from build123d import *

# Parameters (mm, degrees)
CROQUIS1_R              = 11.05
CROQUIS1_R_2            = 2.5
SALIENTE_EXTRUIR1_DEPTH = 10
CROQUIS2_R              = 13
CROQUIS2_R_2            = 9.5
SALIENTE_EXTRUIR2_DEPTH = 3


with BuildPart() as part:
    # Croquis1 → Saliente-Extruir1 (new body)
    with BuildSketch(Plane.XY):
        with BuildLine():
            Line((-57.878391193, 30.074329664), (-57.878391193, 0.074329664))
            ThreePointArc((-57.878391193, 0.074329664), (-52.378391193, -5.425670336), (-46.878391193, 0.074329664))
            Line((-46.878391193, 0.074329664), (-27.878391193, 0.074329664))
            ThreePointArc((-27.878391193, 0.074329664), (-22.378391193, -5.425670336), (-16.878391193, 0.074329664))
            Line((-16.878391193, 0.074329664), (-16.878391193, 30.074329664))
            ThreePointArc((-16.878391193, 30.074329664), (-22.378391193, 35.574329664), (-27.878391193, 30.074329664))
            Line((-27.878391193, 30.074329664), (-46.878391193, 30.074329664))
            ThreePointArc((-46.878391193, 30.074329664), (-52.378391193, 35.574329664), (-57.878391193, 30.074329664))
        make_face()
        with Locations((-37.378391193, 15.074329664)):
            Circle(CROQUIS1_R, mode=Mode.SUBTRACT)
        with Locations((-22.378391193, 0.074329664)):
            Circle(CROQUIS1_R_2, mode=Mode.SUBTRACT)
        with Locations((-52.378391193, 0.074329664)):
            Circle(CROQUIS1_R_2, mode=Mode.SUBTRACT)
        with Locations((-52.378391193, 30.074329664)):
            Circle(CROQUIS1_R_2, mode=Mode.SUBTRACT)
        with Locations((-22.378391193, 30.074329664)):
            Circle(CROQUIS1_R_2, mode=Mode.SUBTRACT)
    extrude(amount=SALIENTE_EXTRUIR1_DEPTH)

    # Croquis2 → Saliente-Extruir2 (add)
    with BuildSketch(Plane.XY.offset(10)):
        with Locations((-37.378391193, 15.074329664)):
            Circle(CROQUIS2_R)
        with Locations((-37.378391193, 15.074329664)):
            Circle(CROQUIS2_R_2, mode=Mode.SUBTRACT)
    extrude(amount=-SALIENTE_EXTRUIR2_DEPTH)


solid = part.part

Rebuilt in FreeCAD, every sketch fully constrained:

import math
import FreeCAD as App
import Part
import Sketcher

V = App.Vector

doc = App.newDocument("Part")
body = doc.addObject("PartDesign::Body", "Body")

sketch1 = doc.addObject("Sketcher::SketchObject", "Sketch")
body.addObject(sketch1)
sketch1.AttachmentSupport = (doc.XY_Plane, [""])
sketch1.MapMode = "FlatFace"
sketch1.addGeometry(Part.LineSegment(V(-57.878391, 30.07433, 0), V(-57.878391, 0.07433, 0)), False)
sketch1.addGeometry(Part.ArcOfCircle(Part.Circle(V(-52.378391, 0.07433, 0), V(0, 0, 1), 5.5), math.radians(180), math.radians(360)), False)
sketch1.addGeometry(Part.LineSegment(V(-46.878391, 0.07433, 0), V(-27.878391, 0.07433, 0)), False)
sketch1.addGeometry(Part.ArcOfCircle(Part.Circle(V(-22.378391, 0.07433, 0), V(0, 0, 1), 5.5), math.radians(180), math.radians(360)), False)
sketch1.addGeometry(Part.LineSegment(V(-16.878391, 0.07433, 0), V(-16.878391, 30.07433, 0)), False)
sketch1.addGeometry(Part.ArcOfCircle(Part.Circle(V(-22.378391, 30.07433, 0), V(0, 0, 1), 5.5), math.radians(0), math.radians(180)), False)
sketch1.addGeometry(Part.LineSegment(V(-27.878391, 30.07433, 0), V(-46.878391, 30.07433, 0)), False)
sketch1.addGeometry(Part.ArcOfCircle(Part.Circle(V(-52.378391, 30.07433, 0), V(0, 0, 1), 5.5), math.radians(0), math.radians(180)), False)
sketch1.addGeometry(Part.Circle(V(-52.378391, 0.07433, 0), V(0, 0, 1), 2.5), False)
sketch1.addGeometry(Part.Circle(V(-22.378391, 0.07433, 0), V(0, 0, 1), 2.5), False)
sketch1.addGeometry(Part.Circle(V(-52.378391, 30.07433, 0), V(0, 0, 1), 2.5), False)
sketch1.addGeometry(Part.Circle(V(-37.378391, 15.07433, 0), V(0, 0, 1), 11.05), False)
sketch1.addGeometry(Part.Circle(V(-22.378391, 30.07433, 0), V(0, 0, 1), 2.5), False)
sketch1.addConstraint(Sketcher.Constraint("Tangent", 0, 2, 1, 1))
sketch1.addConstraint(Sketcher.Constraint("Coincident", 1, 2, 2, 1))
sketch1.addConstraint(Sketcher.Constraint("Coincident", 2, 2, 3, 1))
sketch1.addConstraint(Sketcher.Constraint("Tangent", 3, 2, 4, 1))
sketch1.addConstraint(Sketcher.Constraint("Tangent", 4, 2, 5, 1))
sketch1.addConstraint(Sketcher.Constraint("Coincident", 5, 2, 6, 1))
sketch1.addConstraint(Sketcher.Constraint("Coincident", 6, 2, 7, 1))
sketch1.addConstraint(Sketcher.Constraint("Tangent", 7, 2, 0, 1))
sketch1.addConstraint(Sketcher.Constraint("Vertical", 0))
sketch1.addConstraint(Sketcher.Constraint("Horizontal", 2))
sketch1.addConstraint(Sketcher.Constraint("Vertical", 4))
sketch1.addConstraint(Sketcher.Constraint("Horizontal", 6))
sketch1.addConstraint(Sketcher.Constraint("Coincident", 8, 3, 1, 3))
sketch1.addConstraint(Sketcher.Constraint("Coincident", 9, 3, 3, 3))
sketch1.addConstraint(Sketcher.Constraint("Coincident", 10, 3, 7, 3))
sketch1.addConstraint(Sketcher.Constraint("Coincident", 12, 3, 5, 3))
sketch1.addConstraint(Sketcher.Constraint("Equal", 1, 3))
sketch1.addConstraint(Sketcher.Constraint("Equal", 3, 5))
sketch1.addConstraint(Sketcher.Constraint("Equal", 5, 7))
sketch1.addConstraint(Sketcher.Constraint("Equal", 8, 9))
sketch1.addConstraint(Sketcher.Constraint("Equal", 9, 10))
sketch1.addConstraint(Sketcher.Constraint("Equal", 10, 12))
sketch1.addConstraint(Sketcher.Constraint("Horizontal", 1, 3, 3, 3))
sketch1.addConstraint(Sketcher.Constraint("Horizontal", 5, 3, 7, 3))
sketch1.addConstraint(Sketcher.Constraint("Horizontal", 0, 2, 1, 2))
sketch1.addConstraint(Sketcher.Constraint("Horizontal", 4, 2, 5, 2))
sketch1.addConstraint(Sketcher.Constraint("Diameter", 8, 5.0))
sketch1.addConstraint(Sketcher.Constraint("Diameter", 11, 22.1))
sketch1.addConstraint(Sketcher.Constraint("Radius", 1, 5.5))
sketch1.addConstraint(Sketcher.Constraint("DistanceX", 2, 1, 2, 2, 19.0))
sketch1.addConstraint(Sketcher.Constraint("DistanceY", 0, 2, 0, 1, 30.0))
sketch1.addConstraint(Sketcher.Constraint("DistanceX", 1, 3, 11, 3, 15.0))
sketch1.addConstraint(Sketcher.Constraint("DistanceY", 1, 3, 11, 3, 15.0))
sketch1.addConstraint(Sketcher.Constraint("DistanceX", 1, 3, -1, 1, 52.378391))
sketch1.addConstraint(Sketcher.Constraint("DistanceY", -1, 1, 1, 3, 0.07433))
pad1 = doc.addObject("PartDesign::Pad", "Pad")
body.addObject(pad1)
pad1.Profile = sketch1
pad1.Length = 10

sketch2 = doc.addObject("Sketcher::SketchObject", "Sketch001")
body.addObject(sketch2)
sketch2.AttachmentSupport = (doc.XY_Plane, [""])
sketch2.MapMode = "FlatFace"
sketch2.AttachmentOffset = App.Placement(V(0, 0, 10), App.Rotation())
sketch2.addGeometry(Part.Circle(V(-37.378391, 15.07433, 0), V(0, 0, 1), 13), False)
sketch2.addGeometry(Part.Circle(V(-37.378391, 15.07433, 0), V(0, 0, 1), 9.5), False)
sketch2.addConstraint(Sketcher.Constraint("Coincident", 1, 3, 0, 3))
sketch2.addConstraint(Sketcher.Constraint("Diameter", 0, 26.0))
sketch2.addConstraint(Sketcher.Constraint("Diameter", 1, 19.0))
sketch2.addConstraint(Sketcher.Constraint("DistanceX", 0, 3, -1, 1, 37.378391))
sketch2.addConstraint(Sketcher.Constraint("DistanceY", -1, 1, 0, 3, 15.07433))
pad2 = doc.addObject("PartDesign::Pad", "Pad001")
body.addObject(pad2)
pad2.Profile = sketch2
pad2.Length = 3
pad2.Reversed = True

doc.recompute()
